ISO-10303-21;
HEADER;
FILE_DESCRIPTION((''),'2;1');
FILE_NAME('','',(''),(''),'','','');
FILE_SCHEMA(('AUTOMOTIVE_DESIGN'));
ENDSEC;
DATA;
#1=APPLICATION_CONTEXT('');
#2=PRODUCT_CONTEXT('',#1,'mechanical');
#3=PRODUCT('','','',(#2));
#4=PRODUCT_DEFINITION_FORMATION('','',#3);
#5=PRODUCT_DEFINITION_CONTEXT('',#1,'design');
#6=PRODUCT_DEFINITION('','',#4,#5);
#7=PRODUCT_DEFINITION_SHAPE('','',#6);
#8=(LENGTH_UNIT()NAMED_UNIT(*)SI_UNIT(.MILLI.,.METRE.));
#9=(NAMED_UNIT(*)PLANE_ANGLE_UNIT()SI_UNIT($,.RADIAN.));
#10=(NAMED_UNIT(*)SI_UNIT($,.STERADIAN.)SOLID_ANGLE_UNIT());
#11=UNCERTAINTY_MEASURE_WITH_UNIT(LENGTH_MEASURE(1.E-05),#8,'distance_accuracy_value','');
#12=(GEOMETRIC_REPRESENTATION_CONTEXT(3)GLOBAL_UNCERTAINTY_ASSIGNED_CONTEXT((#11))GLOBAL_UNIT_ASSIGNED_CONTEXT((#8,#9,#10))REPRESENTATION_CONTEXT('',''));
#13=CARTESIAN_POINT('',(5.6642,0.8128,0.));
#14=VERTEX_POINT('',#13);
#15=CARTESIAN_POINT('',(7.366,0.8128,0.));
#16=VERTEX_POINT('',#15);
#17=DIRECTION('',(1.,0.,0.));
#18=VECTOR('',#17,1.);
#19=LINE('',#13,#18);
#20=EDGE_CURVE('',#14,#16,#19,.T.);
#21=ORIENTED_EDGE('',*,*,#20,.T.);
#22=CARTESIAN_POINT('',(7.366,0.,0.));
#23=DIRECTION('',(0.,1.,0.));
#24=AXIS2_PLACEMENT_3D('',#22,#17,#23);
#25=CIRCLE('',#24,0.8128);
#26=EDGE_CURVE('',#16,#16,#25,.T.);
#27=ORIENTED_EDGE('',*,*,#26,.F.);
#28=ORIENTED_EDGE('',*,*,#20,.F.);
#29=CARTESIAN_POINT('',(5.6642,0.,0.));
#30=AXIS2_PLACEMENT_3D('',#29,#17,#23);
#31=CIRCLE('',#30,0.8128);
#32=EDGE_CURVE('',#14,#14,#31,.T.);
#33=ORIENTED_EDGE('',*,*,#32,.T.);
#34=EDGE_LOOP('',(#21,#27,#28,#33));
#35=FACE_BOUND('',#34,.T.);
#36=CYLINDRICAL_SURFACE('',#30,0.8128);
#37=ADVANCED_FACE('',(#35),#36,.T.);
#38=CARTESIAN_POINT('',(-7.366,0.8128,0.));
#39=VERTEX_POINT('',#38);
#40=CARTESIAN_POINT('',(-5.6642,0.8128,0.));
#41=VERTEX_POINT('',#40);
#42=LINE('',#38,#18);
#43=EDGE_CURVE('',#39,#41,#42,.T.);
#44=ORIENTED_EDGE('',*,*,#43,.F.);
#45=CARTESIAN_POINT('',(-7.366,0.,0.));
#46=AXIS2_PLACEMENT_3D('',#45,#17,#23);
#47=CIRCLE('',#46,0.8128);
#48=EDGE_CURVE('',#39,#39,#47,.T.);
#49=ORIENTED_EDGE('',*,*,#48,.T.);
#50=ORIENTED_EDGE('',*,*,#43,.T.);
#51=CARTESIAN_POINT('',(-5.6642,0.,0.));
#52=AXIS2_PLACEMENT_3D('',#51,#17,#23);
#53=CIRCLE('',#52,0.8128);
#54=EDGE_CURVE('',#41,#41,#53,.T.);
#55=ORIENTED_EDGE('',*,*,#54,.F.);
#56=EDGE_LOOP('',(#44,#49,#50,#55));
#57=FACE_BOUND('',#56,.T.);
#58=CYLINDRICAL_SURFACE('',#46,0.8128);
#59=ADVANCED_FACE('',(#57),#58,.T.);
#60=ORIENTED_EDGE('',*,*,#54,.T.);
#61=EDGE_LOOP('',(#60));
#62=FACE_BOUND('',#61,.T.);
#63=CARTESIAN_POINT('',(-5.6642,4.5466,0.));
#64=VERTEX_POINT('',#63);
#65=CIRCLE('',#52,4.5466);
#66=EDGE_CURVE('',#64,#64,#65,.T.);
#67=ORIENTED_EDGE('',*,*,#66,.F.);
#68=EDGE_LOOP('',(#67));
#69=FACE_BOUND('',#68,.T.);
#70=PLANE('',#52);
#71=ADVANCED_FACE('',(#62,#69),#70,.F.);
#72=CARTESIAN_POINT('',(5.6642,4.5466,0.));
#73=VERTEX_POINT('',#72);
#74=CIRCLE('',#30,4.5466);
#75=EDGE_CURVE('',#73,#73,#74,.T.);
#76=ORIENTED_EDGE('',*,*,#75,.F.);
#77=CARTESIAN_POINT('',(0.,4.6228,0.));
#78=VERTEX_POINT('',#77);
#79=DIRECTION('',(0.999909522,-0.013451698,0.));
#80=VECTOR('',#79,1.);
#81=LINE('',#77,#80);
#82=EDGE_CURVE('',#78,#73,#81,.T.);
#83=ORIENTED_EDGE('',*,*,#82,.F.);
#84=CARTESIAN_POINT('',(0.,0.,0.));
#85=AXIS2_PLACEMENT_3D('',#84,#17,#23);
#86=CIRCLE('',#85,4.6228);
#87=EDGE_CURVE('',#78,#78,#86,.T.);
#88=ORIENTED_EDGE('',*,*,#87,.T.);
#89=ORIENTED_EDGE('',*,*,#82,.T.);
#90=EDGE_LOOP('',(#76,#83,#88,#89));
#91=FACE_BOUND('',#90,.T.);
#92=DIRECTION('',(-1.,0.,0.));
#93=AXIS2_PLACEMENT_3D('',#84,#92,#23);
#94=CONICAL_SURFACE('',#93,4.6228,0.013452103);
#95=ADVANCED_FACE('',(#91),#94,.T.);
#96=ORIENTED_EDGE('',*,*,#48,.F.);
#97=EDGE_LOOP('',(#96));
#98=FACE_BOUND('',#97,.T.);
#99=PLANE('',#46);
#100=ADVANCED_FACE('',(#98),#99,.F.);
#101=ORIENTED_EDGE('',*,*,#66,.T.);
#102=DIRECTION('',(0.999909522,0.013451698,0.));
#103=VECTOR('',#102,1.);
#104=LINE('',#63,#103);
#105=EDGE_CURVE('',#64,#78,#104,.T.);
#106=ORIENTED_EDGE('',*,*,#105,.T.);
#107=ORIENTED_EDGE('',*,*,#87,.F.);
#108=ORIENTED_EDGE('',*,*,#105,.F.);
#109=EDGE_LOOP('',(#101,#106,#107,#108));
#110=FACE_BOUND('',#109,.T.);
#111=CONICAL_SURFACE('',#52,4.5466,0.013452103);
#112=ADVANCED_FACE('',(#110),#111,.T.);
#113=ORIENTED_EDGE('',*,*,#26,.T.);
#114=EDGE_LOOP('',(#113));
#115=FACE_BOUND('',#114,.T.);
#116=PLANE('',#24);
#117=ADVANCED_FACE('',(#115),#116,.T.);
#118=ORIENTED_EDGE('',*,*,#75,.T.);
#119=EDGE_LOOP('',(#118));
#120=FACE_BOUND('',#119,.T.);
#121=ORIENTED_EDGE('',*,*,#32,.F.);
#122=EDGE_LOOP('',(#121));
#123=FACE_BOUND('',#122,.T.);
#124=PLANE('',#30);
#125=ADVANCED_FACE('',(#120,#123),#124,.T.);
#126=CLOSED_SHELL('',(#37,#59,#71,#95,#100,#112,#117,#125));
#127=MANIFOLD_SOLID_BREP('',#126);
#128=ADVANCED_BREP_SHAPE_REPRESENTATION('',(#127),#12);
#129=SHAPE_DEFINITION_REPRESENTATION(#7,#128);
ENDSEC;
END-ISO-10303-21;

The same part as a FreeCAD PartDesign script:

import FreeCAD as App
import Part
import Sketcher

V = App.Vector
Q = App.Units.Quantity

doc = App.newDocument("Part")
body = doc.addObject("PartDesign::Body", "Body")

# Sketch on XY plane
sketch1 = body.newObject("Sketcher::SketchObject", "Sketch")
sketch1.AttachmentSupport = (doc.getObject("XY_Plane"), [""])
sketch1.MapMode = "FlatFace"
sketch1.addGeometry(Part.LineSegment(V(-7.4, 0.8, 0), V(-7.4, 0, 0)), False)
sketch1.addGeometry(Part.LineSegment(V(-7.4, 0, 0), V(7.4, 0, 0)), False)
sketch1.addGeometry(Part.LineSegment(V(7.4, 0, 0), V(7.4, 0.8, 0)), False)
sketch1.addGeometry(Part.LineSegment(V(7.4, 0.8, 0), V(5.7, 0.8, 0)), False)
sketch1.addGeometry(Part.LineSegment(V(5.7, 0.8, 0), V(5.7, 4.5, 0)), False)
sketch1.addGeometry(Part.LineSegment(V(5.7, 4.5, 0), V(0, 4.6, 0)), False)
sketch1.addGeometry(Part.LineSegment(V(0, 4.6, 0), V(-5.7, 4.5, 0)), False)
sketch1.addGeometry(Part.LineSegment(V(-5.7, 4.5, 0), V(-5.7, 0.8, 0)), False)
sketch1.addGeometry(Part.LineSegment(V(-5.7, 0.8, 0), V(-7.4, 0.8, 0)), False)
sketch1.addConstraint(Sketcher.Constraint("Coincident", 0, 2, 1, 1))
sketch1.addConstraint(Sketcher.Constraint("Coincident", 1, 2, 2, 1))
sketch1.addConstraint(Sketcher.Constraint("Coincident", 2, 2, 3, 1))
sketch1.addConstraint(Sketcher.Constraint("Coincident", 3, 2, 4, 1))
sketch1.addConstraint(Sketcher.Constraint("Coincident", 4, 2, 5, 1))
sketch1.addConstraint(Sketcher.Constraint("Coincident", 5, 2, 6, 1))
sketch1.addConstraint(Sketcher.Constraint("Coincident", 6, 2, 7, 1))
sketch1.addConstraint(Sketcher.Constraint("Coincident", 7, 2, 8, 1))
sketch1.addConstraint(Sketcher.Constraint("Coincident", 8, 2, 0, 1))
sketch1.addConstraint(Sketcher.Constraint("Vertical", 0))
sketch1.addConstraint(Sketcher.Constraint("Horizontal", 1))
sketch1.addConstraint(Sketcher.Constraint("Vertical", 2))
sketch1.addConstraint(Sketcher.Constraint("Horizontal", 3))
sketch1.addConstraint(Sketcher.Constraint("Vertical", 4))
sketch1.addConstraint(Sketcher.Constraint("Vertical", 7))
sketch1.addConstraint(Sketcher.Constraint("Horizontal", 8))
sketch1.addConstraint(Sketcher.Constraint("Symmetric", 0, 2, 1, 2, -1, 1))
sketch1.addConstraint(Sketcher.Constraint("Symmetric", 4, 2, 6, 2, -2))
sketch1.addConstraint(Sketcher.Constraint("PointOnObject", 5, 2, -2))
sketch1.addConstraint(Sketcher.Constraint("Horizontal", 3, 2, 7, 2))
sketch1.addConstraint(Sketcher.Constraint("DistanceX", 1, 1, 1, 2, Q("0.58 in")))
sketch1.addConstraint(Sketcher.Constraint("DistanceX", 3, 2, 3, 1, Q("0.067 in")))
sketch1.addConstraint(Sketcher.Constraint("DistanceY", 0, 2, 0, 1, Q("0.032 in")))
sketch1.addConstraint(Sketcher.Constraint("DistanceY", -1, 1, 4, 2, Q("0.179 in")))
sketch1.addConstraint(Sketcher.Constraint("DistanceY", -1, 1, 5, 2, Q("0.182 in")))
revolution = body.newObject("PartDesign::Revolution", "Revolution")
revolution.Profile = sketch1
revolution.ReferenceAxis = (sketch1, ["H_Axis"])
revolution.Angle = 360

doc.recompute()
